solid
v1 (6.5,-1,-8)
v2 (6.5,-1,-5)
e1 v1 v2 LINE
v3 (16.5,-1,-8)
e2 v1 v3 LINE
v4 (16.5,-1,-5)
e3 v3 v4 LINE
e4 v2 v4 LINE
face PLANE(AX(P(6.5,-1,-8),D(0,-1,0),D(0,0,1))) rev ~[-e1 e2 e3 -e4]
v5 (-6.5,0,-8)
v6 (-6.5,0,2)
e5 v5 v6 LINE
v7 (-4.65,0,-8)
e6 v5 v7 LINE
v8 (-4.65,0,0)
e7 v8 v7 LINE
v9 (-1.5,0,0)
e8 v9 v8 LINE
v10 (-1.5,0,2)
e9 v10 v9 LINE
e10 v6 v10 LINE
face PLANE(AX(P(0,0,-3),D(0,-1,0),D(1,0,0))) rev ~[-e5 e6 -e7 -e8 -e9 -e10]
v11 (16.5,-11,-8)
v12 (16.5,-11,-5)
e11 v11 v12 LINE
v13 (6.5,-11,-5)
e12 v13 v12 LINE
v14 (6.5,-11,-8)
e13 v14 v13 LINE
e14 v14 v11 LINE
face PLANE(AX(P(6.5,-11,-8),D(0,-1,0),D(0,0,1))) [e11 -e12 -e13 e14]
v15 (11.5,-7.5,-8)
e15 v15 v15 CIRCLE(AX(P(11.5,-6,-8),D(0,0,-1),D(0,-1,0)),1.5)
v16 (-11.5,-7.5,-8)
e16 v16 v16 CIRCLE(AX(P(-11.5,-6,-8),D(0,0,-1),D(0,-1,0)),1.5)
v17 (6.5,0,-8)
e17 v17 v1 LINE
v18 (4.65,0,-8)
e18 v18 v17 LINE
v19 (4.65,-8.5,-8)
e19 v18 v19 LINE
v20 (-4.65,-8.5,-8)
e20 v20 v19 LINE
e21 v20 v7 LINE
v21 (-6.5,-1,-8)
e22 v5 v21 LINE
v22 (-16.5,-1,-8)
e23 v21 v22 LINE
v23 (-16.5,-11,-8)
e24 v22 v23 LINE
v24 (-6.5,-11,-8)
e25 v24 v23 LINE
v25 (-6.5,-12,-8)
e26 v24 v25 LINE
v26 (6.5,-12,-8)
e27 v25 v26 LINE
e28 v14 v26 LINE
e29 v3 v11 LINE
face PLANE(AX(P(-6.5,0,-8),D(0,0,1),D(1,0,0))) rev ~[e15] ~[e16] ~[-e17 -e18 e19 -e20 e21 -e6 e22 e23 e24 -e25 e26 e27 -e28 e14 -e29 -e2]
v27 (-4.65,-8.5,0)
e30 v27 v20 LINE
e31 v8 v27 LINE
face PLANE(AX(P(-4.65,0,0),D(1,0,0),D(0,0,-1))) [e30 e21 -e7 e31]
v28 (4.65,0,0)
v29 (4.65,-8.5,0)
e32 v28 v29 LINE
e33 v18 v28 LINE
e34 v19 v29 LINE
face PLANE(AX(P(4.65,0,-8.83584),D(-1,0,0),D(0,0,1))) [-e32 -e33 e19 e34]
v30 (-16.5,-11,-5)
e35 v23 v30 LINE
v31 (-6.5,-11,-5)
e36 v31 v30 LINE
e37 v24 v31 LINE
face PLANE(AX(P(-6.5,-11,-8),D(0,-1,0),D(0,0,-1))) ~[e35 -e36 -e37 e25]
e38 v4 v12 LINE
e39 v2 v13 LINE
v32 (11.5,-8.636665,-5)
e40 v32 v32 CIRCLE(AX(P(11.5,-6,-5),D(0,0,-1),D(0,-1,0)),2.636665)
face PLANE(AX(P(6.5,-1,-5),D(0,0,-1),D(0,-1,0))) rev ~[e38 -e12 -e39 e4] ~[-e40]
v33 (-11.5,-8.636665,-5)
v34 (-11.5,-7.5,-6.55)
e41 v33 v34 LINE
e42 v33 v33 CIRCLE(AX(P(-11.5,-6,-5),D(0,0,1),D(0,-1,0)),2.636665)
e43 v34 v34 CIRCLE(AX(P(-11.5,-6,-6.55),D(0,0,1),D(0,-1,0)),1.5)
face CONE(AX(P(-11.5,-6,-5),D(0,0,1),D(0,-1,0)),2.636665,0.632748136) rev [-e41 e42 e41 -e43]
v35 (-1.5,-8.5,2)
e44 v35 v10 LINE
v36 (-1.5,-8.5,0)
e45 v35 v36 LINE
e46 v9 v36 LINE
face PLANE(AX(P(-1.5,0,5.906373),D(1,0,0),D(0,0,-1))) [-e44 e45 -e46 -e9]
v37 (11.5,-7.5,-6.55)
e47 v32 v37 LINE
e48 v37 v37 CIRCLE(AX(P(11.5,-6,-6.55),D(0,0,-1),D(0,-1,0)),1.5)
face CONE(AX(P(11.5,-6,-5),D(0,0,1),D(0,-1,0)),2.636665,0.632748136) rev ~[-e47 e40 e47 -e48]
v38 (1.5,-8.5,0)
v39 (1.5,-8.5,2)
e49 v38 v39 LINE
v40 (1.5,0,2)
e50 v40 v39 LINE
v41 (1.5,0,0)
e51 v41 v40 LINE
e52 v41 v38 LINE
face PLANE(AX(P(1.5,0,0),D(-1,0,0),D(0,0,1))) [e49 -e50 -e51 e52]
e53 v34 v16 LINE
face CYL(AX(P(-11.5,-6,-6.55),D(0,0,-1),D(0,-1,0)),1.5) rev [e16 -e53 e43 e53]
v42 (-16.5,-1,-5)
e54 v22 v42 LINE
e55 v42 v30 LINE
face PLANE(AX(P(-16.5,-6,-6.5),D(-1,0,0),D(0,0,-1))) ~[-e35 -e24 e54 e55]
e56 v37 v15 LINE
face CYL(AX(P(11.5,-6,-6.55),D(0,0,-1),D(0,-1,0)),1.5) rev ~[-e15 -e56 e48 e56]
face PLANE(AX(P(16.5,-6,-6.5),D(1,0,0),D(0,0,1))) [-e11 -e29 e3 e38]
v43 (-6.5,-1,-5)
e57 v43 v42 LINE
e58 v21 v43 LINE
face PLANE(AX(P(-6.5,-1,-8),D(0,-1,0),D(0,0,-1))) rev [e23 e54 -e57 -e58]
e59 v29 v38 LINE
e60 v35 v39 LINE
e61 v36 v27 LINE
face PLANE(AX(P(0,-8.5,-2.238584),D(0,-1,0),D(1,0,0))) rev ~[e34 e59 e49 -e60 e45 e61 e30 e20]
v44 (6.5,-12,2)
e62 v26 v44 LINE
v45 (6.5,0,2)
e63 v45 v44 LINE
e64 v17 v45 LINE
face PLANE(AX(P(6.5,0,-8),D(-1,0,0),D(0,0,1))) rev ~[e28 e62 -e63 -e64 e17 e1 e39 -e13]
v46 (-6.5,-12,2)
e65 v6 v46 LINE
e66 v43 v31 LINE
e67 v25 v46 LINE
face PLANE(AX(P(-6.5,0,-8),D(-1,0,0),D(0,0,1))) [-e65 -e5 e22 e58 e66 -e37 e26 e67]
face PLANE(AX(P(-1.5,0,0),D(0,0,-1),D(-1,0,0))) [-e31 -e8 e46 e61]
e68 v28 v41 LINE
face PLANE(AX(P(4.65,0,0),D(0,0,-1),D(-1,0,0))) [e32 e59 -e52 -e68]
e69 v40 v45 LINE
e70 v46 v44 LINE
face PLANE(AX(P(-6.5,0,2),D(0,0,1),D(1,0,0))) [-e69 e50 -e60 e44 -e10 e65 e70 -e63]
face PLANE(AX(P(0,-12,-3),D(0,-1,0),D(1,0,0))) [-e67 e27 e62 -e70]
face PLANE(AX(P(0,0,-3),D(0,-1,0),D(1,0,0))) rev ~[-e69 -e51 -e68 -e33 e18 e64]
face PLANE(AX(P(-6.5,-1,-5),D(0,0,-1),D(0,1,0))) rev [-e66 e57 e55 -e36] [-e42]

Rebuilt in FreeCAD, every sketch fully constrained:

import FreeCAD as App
import Part
import Sketcher
from FreeCAD import Vector
Q = App.Units.Quantity


def add_polygon(sketch, points):
    """Adds a closed chain of lines whose ends are joined by coincident constraints."""
    first, n = sketch.GeometryCount, len(points)
    for a, b in zip(points, points[1:] + points[:1]):
        sketch.addGeometry(Part.LineSegment(App.Vector(*a, 0), App.Vector(*b, 0)), False)
    for i in range(n):
        sketch.addConstraint(Sketcher.Constraint("Coincident", first + i, 2, first + (i + 1) % n, 1))

doc = App.newDocument("Part")
body = doc.addObject("PartDesign::Body", "Body")

# Sketch on XZ plane
sketch1 = body.newObject("Sketcher::SketchObject", "Sketch")
sketch1.AttachmentSupport = (doc.getObject("XZ_Plane"), [""])
sketch1.MapMode = "FlatFace"
add_polygon(sketch1, [(-6, 2), (-6, -8), (6, -8), (6, 2)])  # lines 0-3
sketch1.addConstraint(Sketcher.Constraint("Vertical", 0))
sketch1.addConstraint(Sketcher.Constraint("Horizontal", 1))
sketch1.addConstraint(Sketcher.Constraint("Vertical", 2))
sketch1.addConstraint(Sketcher.Constraint("Horizontal", 3))
sketch1.addConstraint(Sketcher.Constraint("DistanceX", 1, 1, 1, 2, Q("13 mm")))
sketch1.addConstraint(Sketcher.Constraint("DistanceY", 0, 2, 0, 1, Q("10 mm")))
sketch1.addConstraint(Sketcher.Constraint("DistanceY", 0, 2, -1, 1, Q("8 mm")))
sketch1.addConstraint(Sketcher.Constraint("DistanceX", 0, 2, -1, 1, Q("6.5 mm")))
pad1 = body.newObject("PartDesign::Pad", "Pad")
pad1.Profile = sketch1
pad1.Length = 12

# Sketch on XZ plane
sketch2 = body.newObject("Sketcher::SketchObject", "Sketch001")
sketch2.AttachmentSupport = (doc.getObject("XZ_Plane"), [""])
sketch2.MapMode = "FlatFace"
add_polygon(sketch2, [(-1.5, 5.9), (1.5, 5.9), (1.5, 0), (4.7, 0), (4.7, -8.8), (-4.7, -8.8), (-4.7, 0), (-1.5, 0)])  # lines 0-7
sketch2.addConstraint(Sketcher.Constraint("Horizontal", 0))
sketch2.addConstraint(Sketcher.Constraint("Vertical", 1))
sketch2.addConstraint(Sketcher.Constraint("Horizontal", 2))
sketch2.addConstraint(Sketcher.Constraint("Vertical", 3))
sketch2.addConstraint(Sketcher.Constraint("Horizontal", 4))
sketch2.addConstraint(Sketcher.Constraint("Vertical", 5))
sketch2.addConstraint(Sketcher.Constraint("Horizontal", 6))
sketch2.addConstraint(Sketcher.Constraint("Vertical", 7))
sketch2.addConstraint(Sketcher.Constraint("Symmetric", 2, 2, 5, 2, -1, 1))
sketch2.addConstraint(Sketcher.Constraint("Symmetric", 1, 2, 6, 2, -2))
sketch2.addConstraint(Sketcher.Constraint("DistanceX", 0, 1, 0, 2, Q("3 mm")))
sketch2.addConstraint(Sketcher.Constraint("DistanceX", 4, 2, 4, 1, Q("9.3 mm")))
sketch2.addConstraint(Sketcher.Constraint("DistanceY", 3, 2, 3, 1, Q("8.83584 mm")))
sketch2.addConstraint(Sketcher.Constraint("DistanceY", 1, 2, 1, 1, Q("5.906373 mm")))
pocket1 = body.newObject("PartDesign::Pocket", "Pocket")
pocket1.Profile = sketch2
pocket1.Length = 8.5
pocket1.Reversed = True

# Sketch on YZ plane
sketch3 = body.newObject("Sketcher::SketchObject", "Sketch002")
sketch3.AttachmentSupport = (doc.getObject("YZ_Plane"), [""])
sketch3.MapMode = "FlatFace"
sketch3.AttachmentOffset = App.Placement(Vector(0, 0, 6.5), App.Rotation())
add_polygon(sketch3, [(-11, -8), (-1, -8), (-1, -5), (-11, -5)])  # lines 0-3
sketch3.addConstraint(Sketcher.Constraint("Horizontal", 0))
sketch3.addConstraint(Sketcher.Constraint("Vertical", 1))
sketch3.addConstraint(Sketcher.Constraint("Horizontal", 2))
sketch3.addConstraint(Sketcher.Constraint("Vertical", 3))
sketch3.addConstraint(Sketcher.Constraint("DistanceX", 0, 1, 0, 2, Q("10 mm")))
sketch3.addConstraint(Sketcher.Constraint("DistanceY", 1, 1, 1, 2, Q("3 mm")))
sketch3.addConstraint(Sketcher.Constraint("DistanceX", 0, 2, -1, 1, Q("1 mm")))
sketch3.addConstraint(Sketcher.Constraint("DistanceY", 0, 2, -1, 1, Q("8 mm")))
pad2 = body.newObject("PartDesign::Pad", "Pad001")
pad2.Profile = sketch3
pad2.Length = 10

# Sketch on YZ plane
sketch4 = body.newObject("Sketcher::SketchObject", "Sketch003")
sketch4.AttachmentSupport = (doc.getObject("YZ_Plane"), [""])
sketch4.MapMode = "FlatFace"
sketch4.AttachmentOffset = App.Placement(Vector(0, 0, 11.5), App.Rotation())
add_polygon(sketch4, [(-6, -5), (-8.6, -5), (-7.5, -6.5), (-7.5, -10.6), (-6, -10.6)])  # lines 0-4
sketch4.addGeometry(Part.LineSegment(Vector(-6, -5, 0), Vector(-6, -10.6, 0)), True)  # axis
sketch4.addConstraint(Sketcher.Constraint("Horizontal", 0))
sketch4.addConstraint(Sketcher.Constraint("Vertical", 2))
sketch4.addConstraint(Sketcher.Constraint("Horizontal", 3))
sketch4.addConstraint(Sketcher.Constraint("Vertical", 4))
sketch4.addConstraint(Sketcher.Constraint("Vertical", 5))
sketch4.addConstraint(Sketcher.Constraint("Coincident", 5, 1, 4, 2))
sketch4.addConstraint(Sketcher.Constraint("Horizontal", 2, 2, 5, 2))
sketch4.addConstraint(Sketcher.Constraint("DistanceX", 3, 1, 3, 2, Q("1.5 mm")))
sketch4.addConstraint(Sketcher.Constraint("DistanceY", 0, 2, -1, 1, Q("5 mm")))
sketch4.addConstraint(Sketcher.Constraint("DistanceX", 3, 2, -1, 1, Q("6 mm")))
sketch4.addConstraint(Sketcher.Constraint("DistanceY", 1, 2, -1, 1, Q("6.55 mm")))
sketch4.addConstraint(Sketcher.Constraint("Distance", 1, Q("1.92211 mm")))
sketch4.addConstraint(Sketcher.Constraint("DistanceY", 2, 2, 2, 1, Q("4.009105 mm")))
groove = body.newObject("PartDesign::Groove", "Groove")
groove.Profile = sketch4
groove.ReferenceAxis = (sketch4, ["Axis0"])
groove.Angle = 360
doc.recompute()

mirrored = body.newObject("PartDesign::Mirrored", "Mirrored")
mirrored.Originals = [pad2, groove]
mirrored.MirrorPlane = (doc.getObject("YZ_Plane"), [""])
body.Tip = mirrored

doc.recompute()
